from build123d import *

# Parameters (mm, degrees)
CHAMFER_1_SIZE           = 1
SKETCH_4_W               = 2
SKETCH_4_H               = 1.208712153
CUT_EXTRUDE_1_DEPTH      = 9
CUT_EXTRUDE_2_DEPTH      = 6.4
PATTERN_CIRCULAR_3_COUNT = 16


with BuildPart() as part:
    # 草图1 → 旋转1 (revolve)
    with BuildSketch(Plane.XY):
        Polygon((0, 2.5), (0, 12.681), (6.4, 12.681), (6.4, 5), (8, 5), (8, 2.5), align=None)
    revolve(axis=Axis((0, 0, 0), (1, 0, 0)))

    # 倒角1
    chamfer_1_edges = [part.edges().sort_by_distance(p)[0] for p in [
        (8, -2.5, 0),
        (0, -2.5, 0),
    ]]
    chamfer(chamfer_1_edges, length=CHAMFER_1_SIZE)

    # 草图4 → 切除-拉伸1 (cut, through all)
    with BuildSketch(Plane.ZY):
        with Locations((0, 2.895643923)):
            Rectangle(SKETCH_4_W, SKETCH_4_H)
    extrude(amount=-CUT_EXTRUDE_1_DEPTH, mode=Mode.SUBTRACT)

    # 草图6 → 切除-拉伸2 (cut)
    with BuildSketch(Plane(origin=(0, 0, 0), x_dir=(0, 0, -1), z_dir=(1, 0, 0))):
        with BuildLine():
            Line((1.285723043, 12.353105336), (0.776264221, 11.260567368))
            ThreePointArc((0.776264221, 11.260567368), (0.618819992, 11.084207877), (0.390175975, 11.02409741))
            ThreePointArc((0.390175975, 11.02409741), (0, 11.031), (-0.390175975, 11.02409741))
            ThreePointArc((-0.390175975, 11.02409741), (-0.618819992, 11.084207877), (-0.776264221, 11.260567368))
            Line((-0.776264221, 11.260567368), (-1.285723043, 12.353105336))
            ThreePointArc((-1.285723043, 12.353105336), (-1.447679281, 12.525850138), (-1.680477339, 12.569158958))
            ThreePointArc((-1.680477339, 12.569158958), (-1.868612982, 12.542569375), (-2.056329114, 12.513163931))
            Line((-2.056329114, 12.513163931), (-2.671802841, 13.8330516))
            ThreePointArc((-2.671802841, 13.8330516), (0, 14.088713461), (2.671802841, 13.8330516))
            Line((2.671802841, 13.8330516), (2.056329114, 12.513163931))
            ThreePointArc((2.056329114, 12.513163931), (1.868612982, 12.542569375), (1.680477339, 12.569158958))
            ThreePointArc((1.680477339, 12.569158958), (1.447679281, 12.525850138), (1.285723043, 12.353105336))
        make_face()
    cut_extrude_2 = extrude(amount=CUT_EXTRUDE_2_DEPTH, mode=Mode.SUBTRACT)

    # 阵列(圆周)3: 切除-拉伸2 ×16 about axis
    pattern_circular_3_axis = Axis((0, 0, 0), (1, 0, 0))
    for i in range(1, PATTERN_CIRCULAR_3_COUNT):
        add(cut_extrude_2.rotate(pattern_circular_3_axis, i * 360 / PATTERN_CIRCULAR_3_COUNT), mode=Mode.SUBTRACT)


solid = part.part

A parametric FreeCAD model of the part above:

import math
import FreeCAD as App
import Part
import Sketcher
from FreeCAD import Vector
Q = App.Units.Quantity


def edges_at(feature, points):
    """Names of the edges that pass closest to the given points."""
    edges = feature.Shape.Edges
    near = lambda p: min(range(len(edges)), key=lambda i: edges[i].distToShape(Part.Vertex(*p))[0])
    return sorted({f"Edge{near(p) + 1}" for p in points})


def add_polygon(sketch, points):
    """Adds a closed chain of lines whose ends are joined by coincident constraints."""
    first, n = sketch.GeometryCount, len(points)
    for a, b in zip(points, points[1:] + points[:1]):
        sketch.addGeometry(Part.LineSegment(App.Vector(*a, 0), App.Vector(*b, 0)), False)
    for i in range(n):
        sketch.addConstraint(Sketcher.Constraint("Coincident", first + i, 2, first + (i + 1) % n, 1))

doc = App.newDocument("Part")
body = doc.addObject("PartDesign::Body", "Body")

# Sketch on XY plane
sketch1 = doc.addObject("Sketcher::SketchObject", "Sketch")
body.addObject(sketch1)
sketch1.AttachmentSupport = (doc.XY_Plane, [""])
sketch1.MapMode = "FlatFace"
add_polygon(sketch1, [(0, 12.681), (0, 2.5), (8, 2.5), (8, 5), (6.4, 5), (6.4, 12.681)])  # lines 0-5
sketch1.addConstraint([
    Sketcher.Constraint("Vertical", 0),
    Sketcher.Constraint("Horizontal", 1),
    Sketcher.Constraint("Vertical", 2),
    Sketcher.Constraint("Horizontal", 3),
    Sketcher.Constraint("Vertical", 4),
    Sketcher.Constraint("Horizontal", 5),
    Sketcher.Constraint("PointOnObject", 0, 2, -2),
    Sketcher.Constraint("DistanceX", 1, 1, 1, 2, Q("8 mm")),
    Sketcher.Constraint("DistanceX", 3, 2, 3, 1, Q("1.6 mm")),
    Sketcher.Constraint("DistanceY", 2, 1, 2, 2, Q("2.5 mm")),
    Sketcher.Constraint("DistanceY", -1, 1, 2, 2, Q("5 mm")),
    Sketcher.Constraint("DistanceY", 0, 2, 0, 1, Q("10.181 mm")),
])
revolution = doc.addObject("PartDesign::Revolution", "Revolution")
body.addObject(revolution)
revolution.Profile = sketch1
revolution.ReferenceAxis = (sketch1, ["H_Axis"])
revolution.Angle = 360
doc.recompute()

chamfer = doc.addObject("PartDesign::Chamfer", "Chamfer")
body.addObject(chamfer)
chamfer.Base = (revolution, edges_at(revolution, [(8, -2.5, 0), (0, -2.5, 0)]))
chamfer.Size = 1

# Sketch on YZ plane
sketch2 = doc.addObject("Sketcher::SketchObject", "Sketch001")
body.addObject(sketch2)
sketch2.AttachmentSupport = (doc.YZ_Plane, [""])
sketch2.MapMode = "FlatFace"
add_polygon(sketch2, [(3.5, -1), (2.291288, -1), (2.291288, 1), (3.5, 1)])  # lines 0-3
sketch2.addConstraint([
    Sketcher.Constraint("Horizontal", 0),
    Sketcher.Constraint("Vertical", 1),
    Sketcher.Constraint("Horizontal", 2),
    Sketcher.Constraint("Vertical", 3),
    Sketcher.Constraint("DistanceY", 1, 1, 1, 2, Q("2 mm")),
    Sketcher.Constraint("DistanceY", 0, 2, -1, 1, Q("1 mm")),
    Sketcher.Constraint("DistanceX", -1, 1, 2, 2, Q("3.5 mm")),
    Sketcher.Constraint("DistanceX", 0, 2, 0, 1, Q("1.208712 mm")),
])
pocket1 = doc.addObject("PartDesign::Pocket", "Pocket")
body.addObject(pocket1)
pocket1.Profile = sketch2
pocket1.Type = "ThroughAll"
pocket1.Reversed = True

# Sketch on YZ plane
sketch3 = doc.addObject("Sketcher::SketchObject", "Sketch002")
body.addObject(sketch3)
sketch3.AttachmentSupport = (doc.YZ_Plane, [""])
sketch3.MapMode = "FlatFace"
sketch3.addGeometry([
    Part.LineSegment(Vector(11.260567, -0.776264, 0), Vector(12.353105, -1.285723, 0)),  # 0
    Part.ArcOfCircle(Part.Circle(Vector(12.19251, -1.63012, 0), Vector(0, 0, 1), 0.38), math.radians(-7.615198), math.radians(65)),  # 1
    Part.ArcOfCircle(Part.Circle(Vector(0.000003, 0, 0), Vector(0, 0, 1), 12.680997), math.radians(-9.332193), math.radians(-7.615198)),  # 2
    Part.LineSegment(Vector(12.513164, -2.056329, 0), Vector(13.833052, -2.671803, 0)),  # 3
    Part.ArcOfCircle(Part.Circle(Vector(0, 0, 0), Vector(0, 0, 1), 14.088713), math.radians(-10.931855), math.radians(10.931855)),  # 4
    Part.LineSegment(Vector(13.833052, 2.671803, 0), Vector(12.513164, 2.056329, 0)),  # 5
    Part.ArcOfCircle(Part.Circle(Vector(0.000003, 0, 0), Vector(0, 0, 1), 12.680997), math.radians(7.615198), math.radians(9.332193)),  # 6
    Part.ArcOfCircle(Part.Circle(Vector(12.19251, 1.63012, 0), Vector(0, 0, 1), 0.38), math.radians(-65), math.radians(7.615198)),  # 7
    Part.LineSegment(Vector(12.353105, 1.285723, 0), Vector(11.260567, 0.776264, 0)),  # 8
    Part.ArcOfCircle(Part.Circle(Vector(11.433841, 0.404678, 0), Vector(0, 0, 1), 0.41), math.radians(115), math.radians(182.027024)),  # 9
    Part.ArcOfCircle(Part.Circle(Vector(0, 0, 0), Vector(0, 0, 1), 11.031), math.radians(-2.027024), math.radians(2.027024)),  # 10
    Part.ArcOfCircle(Part.Circle(Vector(11.433841, -0.404678, 0), Vector(0, 0, 1), 0.41), math.radians(177.972976), math.radians(245)),  # 11
], False)
sketch3.addConstraint([
    Sketcher.Constraint("Tangent", 0, 2, 1, 2),
    Sketcher.Constraint("Tangent", 1, 1, 2, 2),
    Sketcher.Constraint("Coincident", 2, 1, 3, 1),
    Sketcher.Constraint("Coincident", 3, 2, 4, 1),
    Sketcher.Constraint("Coincident", 4, 2, 5, 1),
    Sketcher.Constraint("Coincident", 5, 2, 6, 2),
    Sketcher.Constraint("Tangent", 6, 1, 7, 2),
    Sketcher.Constraint("Tangent", 7, 1, 8, 1),
    Sketcher.Constraint("Tangent", 8, 2, 9, 1),
    Sketcher.Constraint("Tangent", 9, 2, 10, 2),
    Sketcher.Constraint("Tangent", 10, 1, 11, 1),
    Sketcher.Constraint("Tangent", 11, 2, 0, 1),
    Sketcher.Constraint("Coincident", 2, 3, -1, 1),
    Sketcher.Constraint("Coincident", 4, 3, -1, 1),
    Sketcher.Constraint("Coincident", 6, 3, -1, 1),
    Sketcher.Constraint("Coincident", 10, 3, -1, 1),
    Sketcher.Constraint("Equal", 2, 6),
    Sketcher.Constraint("Equal", 1, 7),
    Sketcher.Constraint("Equal", 9, 11),
    Sketcher.Constraint("Symmetric", 0, 2, 7, 1, -1),
    Sketcher.Constraint("Parallel", 0, 3),
    Sketcher.Constraint("Parallel", 5, 8),
    Sketcher.Constraint("Vertical", 3, 2, 4, 2),
    Sketcher.Constraint("Angle", 0, Q("-25 deg")),
    Sketcher.Constraint("Radius", 1, Q("0.38 mm")),
    Sketcher.Constraint("Radius", 9, Q("0.41 mm")),
    Sketcher.Constraint("Radius", 10, Q("11.031 mm")),
    Sketcher.Constraint("Radius", 2, Q("12.680997 mm")),
    Sketcher.Constraint("Radius", 4, Q("14.088713 mm")),
    Sketcher.Constraint("DistanceY", 1, 3, 9, 3, Q("2.034798 mm")),
    Sketcher.Constraint("DistanceY", 2, 1, -1, 1, Q("2.056329 mm")),
])
pocket2 = doc.addObject("PartDesign::Pocket", "Pocket001")
body.addObject(pocket2)
pocket2.Profile = sketch3
pocket2.Length = 6.4
pocket2.Reversed = True
doc.recompute()

polarpattern = doc.addObject("PartDesign::PolarPattern", "PolarPattern")
body.addObject(polarpattern)
polarpattern.Originals = [pocket2]
polarpattern.Axis = (doc.X_Axis, [""])
polarpattern.Angle = 360
polarpattern.Occurrences = 16
body.Tip = polarpattern

doc.recompute()
